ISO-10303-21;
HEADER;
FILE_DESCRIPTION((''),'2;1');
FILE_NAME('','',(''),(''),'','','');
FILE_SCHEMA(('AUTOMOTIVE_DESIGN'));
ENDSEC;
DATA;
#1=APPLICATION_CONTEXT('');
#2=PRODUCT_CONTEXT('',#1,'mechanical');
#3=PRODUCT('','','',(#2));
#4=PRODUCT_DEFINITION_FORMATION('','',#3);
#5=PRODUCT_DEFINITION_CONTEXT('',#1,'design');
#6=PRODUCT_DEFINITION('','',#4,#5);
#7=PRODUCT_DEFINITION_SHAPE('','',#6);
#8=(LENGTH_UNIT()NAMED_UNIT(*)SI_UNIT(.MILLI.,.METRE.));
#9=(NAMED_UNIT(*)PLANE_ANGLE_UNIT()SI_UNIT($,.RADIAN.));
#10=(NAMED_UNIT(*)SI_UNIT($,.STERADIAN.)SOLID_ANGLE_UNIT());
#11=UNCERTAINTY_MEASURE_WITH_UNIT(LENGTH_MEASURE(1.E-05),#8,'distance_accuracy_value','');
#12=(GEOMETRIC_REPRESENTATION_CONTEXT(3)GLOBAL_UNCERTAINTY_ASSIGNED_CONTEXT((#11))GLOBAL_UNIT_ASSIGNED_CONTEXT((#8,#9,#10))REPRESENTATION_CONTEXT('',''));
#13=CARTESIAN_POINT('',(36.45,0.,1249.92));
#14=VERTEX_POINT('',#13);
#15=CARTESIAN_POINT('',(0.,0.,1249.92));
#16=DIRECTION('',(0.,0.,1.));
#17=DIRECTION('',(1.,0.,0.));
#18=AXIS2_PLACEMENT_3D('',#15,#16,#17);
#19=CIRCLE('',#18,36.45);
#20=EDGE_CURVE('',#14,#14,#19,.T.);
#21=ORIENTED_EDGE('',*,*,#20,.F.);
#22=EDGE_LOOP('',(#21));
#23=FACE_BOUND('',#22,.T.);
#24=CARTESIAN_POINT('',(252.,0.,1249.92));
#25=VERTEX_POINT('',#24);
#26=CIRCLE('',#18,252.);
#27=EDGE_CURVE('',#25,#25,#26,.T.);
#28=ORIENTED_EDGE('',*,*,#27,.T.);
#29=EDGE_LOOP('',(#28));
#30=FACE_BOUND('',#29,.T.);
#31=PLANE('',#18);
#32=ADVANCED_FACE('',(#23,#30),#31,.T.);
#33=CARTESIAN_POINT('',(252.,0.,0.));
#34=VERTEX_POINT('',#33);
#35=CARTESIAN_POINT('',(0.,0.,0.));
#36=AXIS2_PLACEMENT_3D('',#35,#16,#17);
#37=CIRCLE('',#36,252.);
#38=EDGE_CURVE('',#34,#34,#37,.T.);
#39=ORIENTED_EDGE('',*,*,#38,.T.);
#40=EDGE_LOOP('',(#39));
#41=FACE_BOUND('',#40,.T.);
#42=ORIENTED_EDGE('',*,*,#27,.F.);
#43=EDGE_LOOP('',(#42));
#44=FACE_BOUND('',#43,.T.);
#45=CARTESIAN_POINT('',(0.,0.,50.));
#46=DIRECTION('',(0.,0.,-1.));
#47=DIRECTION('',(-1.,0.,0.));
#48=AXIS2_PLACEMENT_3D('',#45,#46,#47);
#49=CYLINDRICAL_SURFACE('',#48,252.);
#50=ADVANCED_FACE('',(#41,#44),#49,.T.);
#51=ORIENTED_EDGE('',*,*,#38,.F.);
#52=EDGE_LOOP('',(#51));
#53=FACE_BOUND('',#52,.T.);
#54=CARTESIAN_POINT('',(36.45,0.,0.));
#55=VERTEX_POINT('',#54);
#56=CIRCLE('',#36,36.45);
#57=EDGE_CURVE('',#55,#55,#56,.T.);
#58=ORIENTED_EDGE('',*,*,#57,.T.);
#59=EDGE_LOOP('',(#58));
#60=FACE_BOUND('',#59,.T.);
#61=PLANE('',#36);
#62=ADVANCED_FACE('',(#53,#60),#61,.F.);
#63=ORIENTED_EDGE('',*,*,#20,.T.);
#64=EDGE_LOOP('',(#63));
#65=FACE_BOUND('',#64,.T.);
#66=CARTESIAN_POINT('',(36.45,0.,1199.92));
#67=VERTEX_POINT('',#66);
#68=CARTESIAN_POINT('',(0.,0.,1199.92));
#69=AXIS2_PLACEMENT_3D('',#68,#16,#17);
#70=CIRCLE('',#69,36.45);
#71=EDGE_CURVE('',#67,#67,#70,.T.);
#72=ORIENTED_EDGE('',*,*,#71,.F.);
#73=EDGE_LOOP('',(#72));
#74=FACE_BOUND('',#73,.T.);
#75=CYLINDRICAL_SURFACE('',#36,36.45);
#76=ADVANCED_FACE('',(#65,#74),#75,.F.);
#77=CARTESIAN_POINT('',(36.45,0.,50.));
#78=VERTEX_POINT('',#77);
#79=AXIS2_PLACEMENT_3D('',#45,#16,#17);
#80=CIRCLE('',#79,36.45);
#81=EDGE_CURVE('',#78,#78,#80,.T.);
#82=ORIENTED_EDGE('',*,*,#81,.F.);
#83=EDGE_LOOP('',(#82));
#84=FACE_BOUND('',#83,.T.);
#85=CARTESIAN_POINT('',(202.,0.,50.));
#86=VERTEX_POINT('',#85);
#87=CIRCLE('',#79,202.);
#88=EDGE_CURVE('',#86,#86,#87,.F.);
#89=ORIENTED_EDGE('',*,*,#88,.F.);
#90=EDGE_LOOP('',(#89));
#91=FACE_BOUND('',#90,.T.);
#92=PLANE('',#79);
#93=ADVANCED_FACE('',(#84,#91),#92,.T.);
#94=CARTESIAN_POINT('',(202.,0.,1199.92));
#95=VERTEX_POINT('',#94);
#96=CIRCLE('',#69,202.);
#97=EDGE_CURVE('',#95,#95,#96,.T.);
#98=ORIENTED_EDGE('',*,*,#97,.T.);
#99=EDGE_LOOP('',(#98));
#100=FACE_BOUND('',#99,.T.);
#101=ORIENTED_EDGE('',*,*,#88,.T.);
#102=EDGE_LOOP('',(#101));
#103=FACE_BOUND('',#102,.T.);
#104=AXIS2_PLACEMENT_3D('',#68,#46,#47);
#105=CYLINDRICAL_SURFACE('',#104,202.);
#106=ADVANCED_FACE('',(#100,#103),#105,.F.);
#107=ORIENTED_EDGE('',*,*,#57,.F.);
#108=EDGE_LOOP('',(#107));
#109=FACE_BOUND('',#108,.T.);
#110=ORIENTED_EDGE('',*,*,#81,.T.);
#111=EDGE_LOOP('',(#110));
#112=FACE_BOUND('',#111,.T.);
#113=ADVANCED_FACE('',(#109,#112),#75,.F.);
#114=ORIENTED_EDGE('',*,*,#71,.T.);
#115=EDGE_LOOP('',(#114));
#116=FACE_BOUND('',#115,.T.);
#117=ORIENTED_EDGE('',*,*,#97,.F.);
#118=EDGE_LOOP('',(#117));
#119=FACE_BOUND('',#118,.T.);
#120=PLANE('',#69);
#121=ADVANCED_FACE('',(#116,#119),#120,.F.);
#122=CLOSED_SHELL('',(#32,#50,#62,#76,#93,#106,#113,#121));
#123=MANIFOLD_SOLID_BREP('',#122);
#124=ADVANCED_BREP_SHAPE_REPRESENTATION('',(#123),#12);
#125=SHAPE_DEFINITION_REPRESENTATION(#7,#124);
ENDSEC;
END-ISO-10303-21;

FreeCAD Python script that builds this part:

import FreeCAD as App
import Part
import Sketcher
from FreeCAD import Vector
Q = App.Units.Quantity

doc = App.newDocument("Part")
body = doc.addObject("PartDesign::Body", "Body")

# Sketch on XY plane
sketch1 = doc.addObject("Sketcher::SketchObject", "Sketch")
body.addObject(sketch1)
sketch1.AttachmentSupport = (doc.XY_Plane, [""])
sketch1.MapMode = "FlatFace"
sketch1.addGeometry(Part.Circle(Vector(0, 0, 0), Vector(0, 0, 1), 252), False)
sketch1.addConstraint([
    Sketcher.Constraint("Coincident", 0, 3, -1, 1),
    Sketcher.Constraint("Diameter", 0, Q("504 mm")),
])
pad1 = doc.addObject("PartDesign::Pad", "Pad")
body.addObject(pad1)
pad1.Profile = sketch1
pad1.Length = 50

# Sketch on XY plane
sketch2 = doc.addObject("Sketcher::SketchObject", "Sketch001")
body.addObject(sketch2)
sketch2.AttachmentSupport = (doc.XY_Plane, [""])
sketch2.MapMode = "FlatFace"
sketch2.AttachmentOffset = App.Placement(Vector(0, 0, 50), App.Rotation())
sketch2.addGeometry([
    Part.Circle(Vector(0, 0, 0), Vector(0, 0, 1), 252),
    Part.Circle(Vector(0, 0, 0), Vector(0, 0, 1), 202),
], False)
sketch2.addConstraint([
    Sketcher.Constraint("Coincident", 0, 3, -1, 1),
    Sketcher.Constraint("Coincident", 1, 3, -1, 1),
    Sketcher.Constraint("Diameter", 0, Q("504 mm")),
    Sketcher.Constraint("Diameter", 1, Q("404 mm")),
])
pad2 = doc.addObject("PartDesign::Pad", "Pad001")
body.addObject(pad2)
pad2.Profile = sketch2
pad2.Length = 1149.92

# Sketch on XY plane
sketch3 = doc.addObject("Sketcher::SketchObject", "Sketch002")
body.addObject(sketch3)
sketch3.AttachmentSupport = (doc.XY_Plane, [""])
sketch3.MapMode = "FlatFace"
sketch3.AttachmentOffset = App.Placement(Vector(0, 0, 1199.92), App.Rotation())
sketch3.addGeometry(Part.Circle(Vector(0, 0, 0), Vector(0, 0, 1), 252), False)
sketch3.addConstraint([
    Sketcher.Constraint("Coincident", 0, 3, -1, 1),
    Sketcher.Constraint("Diameter", 0, Q("504 mm")),
])
pad3 = doc.addObject("PartDesign::Pad", "Pad002")
body.addObject(pad3)
pad3.Profile = sketch3
pad3.Length = 50

# Sketch on XY plane
sketch4 = doc.addObject("Sketcher::SketchObject", "Sketch003")
body.addObject(sketch4)
sketch4.AttachmentSupport = (doc.XY_Plane, [""])
sketch4.MapMode = "FlatFace"
sketch4.AttachmentOffset = App.Placement(Vector(0, 0, 1249.92), App.Rotation())
sketch4.addGeometry(Part.Circle(Vector(0, 0, 0), Vector(0, 0, 1), 36.45), False)
sketch4.addConstraint([
    Sketcher.Constraint("Coincident", 0, 3, -1, 1),
    Sketcher.Constraint("Diameter", 0, Q("72.9 mm")),
])
pocket1 = doc.addObject("PartDesign::Pocket", "Pocket")
body.addObject(pocket1)
pocket1.Profile = sketch4
pocket1.Type = "ThroughAll"

doc.recompute()
